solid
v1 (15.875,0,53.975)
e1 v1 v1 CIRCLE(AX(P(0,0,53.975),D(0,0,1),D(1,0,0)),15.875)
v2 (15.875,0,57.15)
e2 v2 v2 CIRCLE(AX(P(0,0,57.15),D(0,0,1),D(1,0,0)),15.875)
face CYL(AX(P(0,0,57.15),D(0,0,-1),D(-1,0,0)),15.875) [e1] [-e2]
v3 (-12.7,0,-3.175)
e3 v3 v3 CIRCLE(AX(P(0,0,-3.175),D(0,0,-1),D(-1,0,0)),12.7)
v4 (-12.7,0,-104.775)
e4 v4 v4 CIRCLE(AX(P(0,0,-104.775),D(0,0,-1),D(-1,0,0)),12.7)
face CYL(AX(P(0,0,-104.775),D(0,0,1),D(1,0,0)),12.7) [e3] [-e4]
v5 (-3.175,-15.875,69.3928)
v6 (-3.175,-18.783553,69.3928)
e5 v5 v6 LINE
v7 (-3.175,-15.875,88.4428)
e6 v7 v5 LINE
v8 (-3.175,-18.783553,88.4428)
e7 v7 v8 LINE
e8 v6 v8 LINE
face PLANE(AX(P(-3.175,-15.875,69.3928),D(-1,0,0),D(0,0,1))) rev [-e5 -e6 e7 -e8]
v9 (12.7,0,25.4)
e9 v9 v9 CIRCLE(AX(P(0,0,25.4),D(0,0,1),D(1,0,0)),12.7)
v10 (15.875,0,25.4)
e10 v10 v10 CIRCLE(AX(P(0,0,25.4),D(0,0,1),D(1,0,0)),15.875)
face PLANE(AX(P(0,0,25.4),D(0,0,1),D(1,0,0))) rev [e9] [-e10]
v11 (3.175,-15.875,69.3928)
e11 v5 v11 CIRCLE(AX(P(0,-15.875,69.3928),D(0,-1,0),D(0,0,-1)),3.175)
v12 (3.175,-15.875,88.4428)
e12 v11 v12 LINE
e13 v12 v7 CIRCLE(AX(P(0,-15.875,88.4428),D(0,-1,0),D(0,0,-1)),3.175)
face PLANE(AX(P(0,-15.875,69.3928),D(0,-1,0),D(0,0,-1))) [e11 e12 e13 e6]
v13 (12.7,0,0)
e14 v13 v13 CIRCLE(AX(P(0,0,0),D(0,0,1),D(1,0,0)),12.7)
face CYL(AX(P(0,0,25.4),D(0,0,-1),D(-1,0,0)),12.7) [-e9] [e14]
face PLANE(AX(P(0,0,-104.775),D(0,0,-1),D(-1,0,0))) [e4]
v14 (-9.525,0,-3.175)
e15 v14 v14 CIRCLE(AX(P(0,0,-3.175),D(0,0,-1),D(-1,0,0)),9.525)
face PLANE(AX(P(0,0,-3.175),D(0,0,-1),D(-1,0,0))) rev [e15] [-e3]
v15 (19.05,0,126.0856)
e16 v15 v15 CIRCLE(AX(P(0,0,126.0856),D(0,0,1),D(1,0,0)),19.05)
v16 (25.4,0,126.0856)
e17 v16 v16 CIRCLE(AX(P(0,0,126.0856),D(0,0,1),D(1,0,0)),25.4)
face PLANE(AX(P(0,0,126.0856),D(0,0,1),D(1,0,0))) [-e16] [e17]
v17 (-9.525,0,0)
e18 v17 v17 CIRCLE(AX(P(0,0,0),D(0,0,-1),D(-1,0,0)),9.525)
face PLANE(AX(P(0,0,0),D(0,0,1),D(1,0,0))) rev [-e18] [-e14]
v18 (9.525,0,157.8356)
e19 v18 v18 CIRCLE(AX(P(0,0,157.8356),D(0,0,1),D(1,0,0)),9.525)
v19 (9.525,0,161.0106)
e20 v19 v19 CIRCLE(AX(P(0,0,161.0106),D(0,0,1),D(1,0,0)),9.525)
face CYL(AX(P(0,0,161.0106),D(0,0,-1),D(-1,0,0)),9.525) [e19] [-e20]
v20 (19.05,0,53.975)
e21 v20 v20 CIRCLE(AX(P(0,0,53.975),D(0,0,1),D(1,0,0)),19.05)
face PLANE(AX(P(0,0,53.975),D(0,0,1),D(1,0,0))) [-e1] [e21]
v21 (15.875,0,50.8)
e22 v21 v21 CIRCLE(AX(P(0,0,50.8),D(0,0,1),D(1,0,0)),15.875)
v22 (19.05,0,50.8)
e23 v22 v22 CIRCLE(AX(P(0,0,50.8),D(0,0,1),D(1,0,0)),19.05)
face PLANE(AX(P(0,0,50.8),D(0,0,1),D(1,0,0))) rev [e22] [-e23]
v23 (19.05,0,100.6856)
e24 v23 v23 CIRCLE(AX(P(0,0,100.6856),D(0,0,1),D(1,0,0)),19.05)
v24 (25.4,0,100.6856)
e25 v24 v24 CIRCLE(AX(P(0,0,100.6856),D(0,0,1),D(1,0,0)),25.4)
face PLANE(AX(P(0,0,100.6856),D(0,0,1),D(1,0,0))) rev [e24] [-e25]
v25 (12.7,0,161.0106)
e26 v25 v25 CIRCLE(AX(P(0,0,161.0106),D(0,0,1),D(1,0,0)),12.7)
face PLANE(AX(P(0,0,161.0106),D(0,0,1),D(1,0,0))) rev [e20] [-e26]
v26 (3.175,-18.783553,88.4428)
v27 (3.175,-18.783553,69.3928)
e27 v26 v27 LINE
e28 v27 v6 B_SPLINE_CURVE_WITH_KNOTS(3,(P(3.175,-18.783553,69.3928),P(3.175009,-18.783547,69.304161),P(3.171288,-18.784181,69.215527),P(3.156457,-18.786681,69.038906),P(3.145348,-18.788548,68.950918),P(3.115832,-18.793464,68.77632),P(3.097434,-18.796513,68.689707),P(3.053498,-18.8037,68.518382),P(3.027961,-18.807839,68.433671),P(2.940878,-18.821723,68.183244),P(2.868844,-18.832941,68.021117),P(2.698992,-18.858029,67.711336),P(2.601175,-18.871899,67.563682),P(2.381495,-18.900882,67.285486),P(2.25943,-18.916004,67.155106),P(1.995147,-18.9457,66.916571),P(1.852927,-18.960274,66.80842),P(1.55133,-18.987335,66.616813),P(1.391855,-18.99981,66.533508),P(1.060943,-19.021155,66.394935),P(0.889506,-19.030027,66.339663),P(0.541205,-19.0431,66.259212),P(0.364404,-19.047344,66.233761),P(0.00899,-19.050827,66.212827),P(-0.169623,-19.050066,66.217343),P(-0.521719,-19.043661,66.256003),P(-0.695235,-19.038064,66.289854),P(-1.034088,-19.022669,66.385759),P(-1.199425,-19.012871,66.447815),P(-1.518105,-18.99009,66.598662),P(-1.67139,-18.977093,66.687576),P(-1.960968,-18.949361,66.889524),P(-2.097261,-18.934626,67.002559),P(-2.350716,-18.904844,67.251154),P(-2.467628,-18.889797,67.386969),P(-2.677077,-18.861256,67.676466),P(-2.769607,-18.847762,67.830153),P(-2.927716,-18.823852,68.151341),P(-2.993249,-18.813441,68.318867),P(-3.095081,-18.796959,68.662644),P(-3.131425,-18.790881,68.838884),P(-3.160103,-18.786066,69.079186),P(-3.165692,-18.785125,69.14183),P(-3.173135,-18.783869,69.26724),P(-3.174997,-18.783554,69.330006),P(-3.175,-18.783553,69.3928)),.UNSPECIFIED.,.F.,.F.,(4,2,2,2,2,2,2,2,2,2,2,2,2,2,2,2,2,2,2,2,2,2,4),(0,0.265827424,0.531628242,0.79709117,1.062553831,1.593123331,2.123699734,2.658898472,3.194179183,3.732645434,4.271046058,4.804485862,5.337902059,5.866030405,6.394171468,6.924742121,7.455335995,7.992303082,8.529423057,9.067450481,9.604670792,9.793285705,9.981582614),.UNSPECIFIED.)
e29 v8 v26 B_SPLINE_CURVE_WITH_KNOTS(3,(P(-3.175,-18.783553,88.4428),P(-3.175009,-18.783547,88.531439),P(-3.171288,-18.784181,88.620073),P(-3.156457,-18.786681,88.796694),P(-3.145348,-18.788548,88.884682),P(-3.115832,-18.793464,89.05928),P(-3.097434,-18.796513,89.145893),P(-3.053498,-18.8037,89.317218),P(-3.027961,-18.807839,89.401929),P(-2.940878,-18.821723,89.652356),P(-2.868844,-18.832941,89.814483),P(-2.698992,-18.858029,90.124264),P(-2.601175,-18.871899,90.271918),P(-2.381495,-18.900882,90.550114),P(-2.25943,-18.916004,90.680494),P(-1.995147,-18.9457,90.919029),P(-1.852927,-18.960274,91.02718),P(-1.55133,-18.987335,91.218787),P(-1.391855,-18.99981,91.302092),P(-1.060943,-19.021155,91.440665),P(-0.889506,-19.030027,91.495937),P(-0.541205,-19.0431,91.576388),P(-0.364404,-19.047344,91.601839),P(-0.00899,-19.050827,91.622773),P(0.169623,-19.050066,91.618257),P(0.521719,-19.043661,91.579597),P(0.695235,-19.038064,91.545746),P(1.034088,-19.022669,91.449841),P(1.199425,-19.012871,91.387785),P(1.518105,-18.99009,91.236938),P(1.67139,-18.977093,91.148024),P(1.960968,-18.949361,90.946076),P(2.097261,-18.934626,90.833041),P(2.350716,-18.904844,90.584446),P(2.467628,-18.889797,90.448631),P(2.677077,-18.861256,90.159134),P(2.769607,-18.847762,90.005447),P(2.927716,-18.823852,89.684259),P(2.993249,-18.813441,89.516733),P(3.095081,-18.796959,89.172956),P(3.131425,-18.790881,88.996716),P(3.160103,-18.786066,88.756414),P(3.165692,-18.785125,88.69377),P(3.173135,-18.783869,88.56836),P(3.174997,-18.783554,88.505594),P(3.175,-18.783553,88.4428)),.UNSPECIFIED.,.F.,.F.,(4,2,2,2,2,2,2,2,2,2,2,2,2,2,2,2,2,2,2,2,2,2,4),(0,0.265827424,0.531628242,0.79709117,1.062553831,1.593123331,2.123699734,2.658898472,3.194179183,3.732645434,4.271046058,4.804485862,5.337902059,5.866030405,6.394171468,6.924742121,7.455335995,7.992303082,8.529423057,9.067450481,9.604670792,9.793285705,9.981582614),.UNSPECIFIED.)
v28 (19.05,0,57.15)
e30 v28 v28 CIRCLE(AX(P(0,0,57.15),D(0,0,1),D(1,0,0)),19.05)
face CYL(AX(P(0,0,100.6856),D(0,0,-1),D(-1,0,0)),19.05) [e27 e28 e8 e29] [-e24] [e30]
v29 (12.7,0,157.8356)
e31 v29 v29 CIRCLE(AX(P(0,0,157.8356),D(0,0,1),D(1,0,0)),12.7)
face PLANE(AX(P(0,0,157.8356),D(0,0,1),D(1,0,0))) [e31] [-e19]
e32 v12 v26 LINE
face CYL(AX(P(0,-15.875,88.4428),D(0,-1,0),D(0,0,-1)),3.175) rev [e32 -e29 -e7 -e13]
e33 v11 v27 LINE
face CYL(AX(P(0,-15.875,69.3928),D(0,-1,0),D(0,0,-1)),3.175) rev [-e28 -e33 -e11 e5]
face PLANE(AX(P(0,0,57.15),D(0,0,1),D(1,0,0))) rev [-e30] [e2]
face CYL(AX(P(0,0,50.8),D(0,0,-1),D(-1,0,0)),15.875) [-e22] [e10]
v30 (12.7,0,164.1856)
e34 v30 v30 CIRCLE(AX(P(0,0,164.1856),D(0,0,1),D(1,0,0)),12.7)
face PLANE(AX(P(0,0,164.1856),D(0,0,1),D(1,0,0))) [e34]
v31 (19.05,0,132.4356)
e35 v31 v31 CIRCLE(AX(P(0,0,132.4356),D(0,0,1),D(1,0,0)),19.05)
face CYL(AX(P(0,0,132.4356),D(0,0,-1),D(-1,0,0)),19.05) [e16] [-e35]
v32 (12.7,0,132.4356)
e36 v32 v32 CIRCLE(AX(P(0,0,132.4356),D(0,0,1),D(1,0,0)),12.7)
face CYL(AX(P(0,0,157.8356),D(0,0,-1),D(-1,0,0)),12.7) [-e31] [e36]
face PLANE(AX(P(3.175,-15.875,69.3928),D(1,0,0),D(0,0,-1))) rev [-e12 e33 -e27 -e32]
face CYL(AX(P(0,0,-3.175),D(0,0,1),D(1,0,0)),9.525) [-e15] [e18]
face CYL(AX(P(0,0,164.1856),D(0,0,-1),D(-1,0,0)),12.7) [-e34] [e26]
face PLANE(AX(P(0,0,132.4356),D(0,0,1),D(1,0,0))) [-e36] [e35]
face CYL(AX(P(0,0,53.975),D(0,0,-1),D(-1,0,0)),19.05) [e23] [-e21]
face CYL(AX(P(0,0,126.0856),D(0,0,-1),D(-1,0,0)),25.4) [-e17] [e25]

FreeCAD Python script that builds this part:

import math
import FreeCAD as App
import Part
import Sketcher
from FreeCAD import Vector
Q = App.Units.Quantity

doc = App.newDocument("Part")
body = doc.addObject("PartDesign::Body", "Body")

# Sketch on XY plane
sketch1 = doc.addObject("Sketcher::SketchObject", "Sketch")
body.addObject(sketch1)
sketch1.AttachmentSupport = (doc.XY_Plane, [""])
sketch1.MapMode = "FlatFace"
sketch1.addGeometry(Part.Circle(Vector(0, 0, 0), Vector(0, 0, 1), 12.7), False)
sketch1.addConstraint(Sketcher.Constraint("Coincident", 0, 3, -1, 1))
sketch1.addConstraint(Sketcher.Constraint("Diameter", 0, Q("1 in")))
pad1 = doc.addObject("PartDesign::Pad", "Pad")
body.addObject(pad1)
pad1.Profile = sketch1
pad1.Length = Q("1 in")

# Sketch on XY plane
sketch2 = doc.addObject("Sketcher::SketchObject", "Sketch001")
body.addObject(sketch2)
sketch2.AttachmentSupport = (doc.XY_Plane, [""])
sketch2.MapMode = "FlatFace"
sketch2.AttachmentOffset = App.Placement(Vector(0, 0, 1 * 25.4), App.Rotation())
sketch2.addGeometry(Part.Circle(Vector(0, 0, 0), Vector(0, 0, 1), 15.875), False)
sketch2.addConstraint(Sketcher.Constraint("Coincident", 0, 3, -1, 1))
sketch2.addConstraint(Sketcher.Constraint("Diameter", 0, Q("1.25 in")))
pad2 = doc.addObject("PartDesign::Pad", "Pad001")
body.addObject(pad2)
pad2.Profile = sketch2
pad2.Length = Q("1 in")

# Sketch on XY plane
sketch3 = doc.addObject("Sketcher::SketchObject", "Sketch002")
body.addObject(sketch3)
sketch3.AttachmentSupport = (doc.XY_Plane, [""])
sketch3.MapMode = "FlatFace"
sketch3.AttachmentOffset = App.Placement(Vector(0, 0, 2 * 25.4), App.Rotation())
sketch3.addGeometry(Part.Circle(Vector(0, 0, 0), Vector(0, 0, 1), 19.05), False)
sketch3.addConstraint(Sketcher.Constraint("Coincident", 0, 3, -1, 1))
sketch3.addConstraint(Sketcher.Constraint("Diameter", 0, Q("1.5 in")))
pad3 = doc.addObject("PartDesign::Pad", "Pad002")
body.addObject(pad3)
pad3.Profile = sketch3
pad3.Length = Q("0.125 in")

# Sketch on XY plane
sketch4 = doc.addObject("Sketcher::SketchObject", "Sketch003")
body.addObject(sketch4)
sketch4.AttachmentSupport = (doc.XY_Plane, [""])
sketch4.MapMode = "FlatFace"
sketch4.AttachmentOffset = App.Placement(Vector(0, 0, 2.125 * 25.4), App.Rotation())
sketch4.addGeometry(Part.Circle(Vector(0, 0, 0), Vector(0, 0, 1), 15.875), False)
sketch4.addConstraint(Sketcher.Constraint("Coincident", 0, 3, -1, 1))
sketch4.addConstraint(Sketcher.Constraint("Diameter", 0, Q("1.25 in")))
pad4 = doc.addObject("PartDesign::Pad", "Pad003")
body.addObject(pad4)
pad4.Profile = sketch4
pad4.Length = Q("0.125 in")

# Sketch on XY plane
sketch5 = doc.addObject("Sketcher::SketchObject", "Sketch004")
body.addObject(sketch5)
sketch5.AttachmentSupport = (doc.XY_Plane, [""])
sketch5.MapMode = "FlatFace"
sketch5.AttachmentOffset = App.Placement(Vector(0, 0, 2.25 * 25.4), App.Rotation())
sketch5.addGeometry(Part.Circle(Vector(0, 0, 0), Vector(0, 0, 1), 19.05), False)
sketch5.addConstraint(Sketcher.Constraint("Coincident", 0, 3, -1, 1))
sketch5.addConstraint(Sketcher.Constraint("Diameter", 0, Q("1.5 in")))
pad5 = doc.addObject("PartDesign::Pad", "Pad004")
body.addObject(pad5)
pad5.Profile = sketch5
pad5.Length = Q("1.714 in")

# Sketch on XY plane
sketch6 = doc.addObject("Sketcher::SketchObject", "Sketch005")
body.addObject(sketch6)
sketch6.AttachmentSupport = (doc.XY_Plane, [""])
sketch6.MapMode = "FlatFace"
sketch6.AttachmentOffset = App.Placement(Vector(0, 0, 3.964 * 25.4), App.Rotation())
sketch6.addGeometry(Part.Circle(Vector(0, 0, 0), Vector(0, 0, 1), 25.4), False)
sketch6.addConstraint(Sketcher.Constraint("Coincident", 0, 3, -1, 1))
sketch6.addConstraint(Sketcher.Constraint("Diameter", 0, Q("2 in")))
pad6 = doc.addObject("PartDesign::Pad", "Pad005")
body.addObject(pad6)
pad6.Profile = sketch6
pad6.Length = Q("1 in")

# Sketch on XY plane
sketch7 = doc.addObject("Sketcher::SketchObject", "Sketch006")
body.addObject(sketch7)
sketch7.AttachmentSupport = (doc.XY_Plane, [""])
sketch7.MapMode = "FlatFace"
sketch7.AttachmentOffset = App.Placement(Vector(0, 0, 4.964 * 25.4), App.Rotation())
sketch7.addGeometry(Part.Circle(Vector(0, 0, 0), Vector(0, 0, 1), 19.05), False)
sketch7.addConstraint(Sketcher.Constraint("Coincident", 0, 3, -1, 1))
sketch7.addConstraint(Sketcher.Constraint("Diameter", 0, Q("1.5 in")))
pad7 = doc.addObject("PartDesign::Pad", "Pad006")
body.addObject(pad7)
pad7.Profile = sketch7
pad7.Length = Q("0.25 in")

# Sketch on XY plane
sketch8 = doc.addObject("Sketcher::SketchObject", "Sketch007")
body.addObject(sketch8)
sketch8.AttachmentSupport = (doc.XY_Plane, [""])
sketch8.MapMode = "FlatFace"
sketch8.AttachmentOffset = App.Placement(Vector(0, 0, 5.214 * 25.4), App.Rotation())
sketch8.addGeometry(Part.Circle(Vector(0, 0, 0), Vector(0, 0, 1), 12.7), False)
sketch8.addConstraint(Sketcher.Constraint("Coincident", 0, 3, -1, 1))
sketch8.addConstraint(Sketcher.Constraint("Diameter", 0, Q("1 in")))
pad8 = doc.addObject("PartDesign::Pad", "Pad007")
body.addObject(pad8)
pad8.Profile = sketch8
pad8.Length = Q("1 in")

# Sketch on XZ plane
sketch9 = doc.addObject("Sketcher::SketchObject", "Sketch008")
body.addObject(sketch9)
sketch9.AttachmentSupport = (doc.XZ_Plane, [""])
sketch9.MapMode = "FlatFace"
sketch9.AttachmentOffset = App.Placement(Vector(0, 0, 0.75 * 25.4), App.Rotation())
sketch9.addGeometry(Part.LineSegment(Vector(-3.175, 88.4428, 0), Vector(-3.175, 69.3928, 0)), False)
sketch9.addGeometry(Part.ArcOfCircle(Part.Circle(Vector(0, 69.3928, 0), Vector(0, 0, 1), 3.175), math.radians(180), math.radians(360)), False)
sketch9.addGeometry(Part.LineSegment(Vector(3.175, 69.3928, 0), Vector(3.175, 88.4428, 0)), False)
sketch9.addGeometry(Part.ArcOfCircle(Part.Circle(Vector(0, 88.4428, 0), Vector(0, 0, 1), 3.175), math.radians(0), math.radians(180)), False)
sketch9.addConstraint(Sketcher.Constraint("Tangent", 0, 2, 1, 1))
sketch9.addConstraint(Sketcher.Constraint("Tangent", 1, 2, 2, 1))
sketch9.addConstraint(Sketcher.Constraint("Tangent", 2, 2, 3, 1))
sketch9.addConstraint(Sketcher.Constraint("Tangent", 3, 2, 0, 1))
sketch9.addConstraint(Sketcher.Constraint("Vertical", 0))
sketch9.addConstraint(Sketcher.Constraint("Vertical", 2))
sketch9.addConstraint(Sketcher.Constraint("PointOnObject", 1, 3, -2))
sketch9.addConstraint(Sketcher.Constraint("Radius", 1, Q("0.125 in")))
sketch9.addConstraint(Sketcher.Constraint("DistanceY", 0, 2, 0, 1, Q("0.75 in")))
sketch9.addConstraint(Sketcher.Constraint("DistanceY", -1, 1, 1, 3, Q("2.732 in")))
pocket1 = doc.addObject("PartDesign::Pocket", "Pocket")
body.addObject(pocket1)
pocket1.Profile = sketch9
pocket1.Length = Q("0.125 in")

# Sketch on XY plane
sketch10 = doc.addObject("Sketcher::SketchObject", "Sketch009")
body.addObject(sketch10)
sketch10.AttachmentSupport = (doc.XY_Plane, [""])
sketch10.MapMode = "FlatFace"
sketch10.addGeometry(Part.Circle(Vector(0, 0, 0), Vector(0, 0, 1), 9.525), False)
sketch10.addConstraint(Sketcher.Constraint("Coincident", 0, 3, -1, 1))
sketch10.addConstraint(Sketcher.Constraint("Diameter", 0, Q("0.75 in")))
pad9 = doc.addObject("PartDesign::Pad", "Pad008")
body.addObject(pad9)
pad9.Profile = sketch10
pad9.Length = Q("0.125 in")
pad9.Reversed = True

# Sketch on XY plane
sketch11 = doc.addObject("Sketcher::SketchObject", "Sketch010")
body.addObject(sketch11)
sketch11.AttachmentSupport = (doc.XY_Plane, [""])
sketch11.MapMode = "FlatFace"
sketch11.AttachmentOffset = App.Placement(Vector(0, 0, -0.125 * 25.4), App.Rotation())
sketch11.addGeometry(Part.Circle(Vector(0, 0, 0), Vector(0, 0, 1), 12.7), False)
sketch11.addConstraint(Sketcher.Constraint("Coincident", 0, 3, -1, 1))
sketch11.addConstraint(Sketcher.Constraint("Diameter", 0, Q("1 in")))
pad10 = doc.addObject("PartDesign::Pad", "Pad009")
body.addObject(pad10)
pad10.Profile = sketch11
pad10.Length = Q("4 in")
pad10.Reversed = True

# Sketch on XY plane
sketch12 = doc.addObject("Sketcher::SketchObject", "Sketch011")
body.addObject(sketch12)
sketch12.AttachmentSupport = (doc.XY_Plane, [""])
sketch12.MapMode = "FlatFace"
sketch12.AttachmentOffset = App.Placement(Vector(0, 0, 6.214 * 25.4), App.Rotation())
sketch12.addGeometry(Part.Circle(Vector(0, 0, 0), Vector(0, 0, 1), 9.525), False)
sketch12.addConstraint(Sketcher.Constraint("Coincident", 0, 3, -1, 1))
sketch12.addConstraint(Sketcher.Constraint("Diameter", 0, Q("0.75 in")))
pad11 = doc.addObject("PartDesign::Pad", "Pad010")
body.addObject(pad11)
pad11.Profile = sketch12
pad11.Length = Q("0.125 in")

# Sketch on XY plane
sketch13 = doc.addObject("Sketcher::SketchObject", "Sketch012")
body.addObject(sketch13)
sketch13.AttachmentSupport = (doc.XY_Plane, [""])
sketch13.MapMode = "FlatFace"
sketch13.AttachmentOffset = App.Placement(Vector(0, 0, 6.339 * 25.4), App.Rotation())
sketch13.addGeometry(Part.Circle(Vector(0, 0, 0), Vector(0, 0, 1), 12.7), False)
sketch13.addConstraint(Sketcher.Constraint("Coincident", 0, 3, -1, 1))
sketch13.addConstraint(Sketcher.Constraint("Diameter", 0, Q("1 in")))
pad12 = doc.addObject("PartDesign::Pad", "Pad011")
body.addObject(pad12)
pad12.Profile = sketch13
pad12.Length = Q("0.125 in")

doc.recompute()
